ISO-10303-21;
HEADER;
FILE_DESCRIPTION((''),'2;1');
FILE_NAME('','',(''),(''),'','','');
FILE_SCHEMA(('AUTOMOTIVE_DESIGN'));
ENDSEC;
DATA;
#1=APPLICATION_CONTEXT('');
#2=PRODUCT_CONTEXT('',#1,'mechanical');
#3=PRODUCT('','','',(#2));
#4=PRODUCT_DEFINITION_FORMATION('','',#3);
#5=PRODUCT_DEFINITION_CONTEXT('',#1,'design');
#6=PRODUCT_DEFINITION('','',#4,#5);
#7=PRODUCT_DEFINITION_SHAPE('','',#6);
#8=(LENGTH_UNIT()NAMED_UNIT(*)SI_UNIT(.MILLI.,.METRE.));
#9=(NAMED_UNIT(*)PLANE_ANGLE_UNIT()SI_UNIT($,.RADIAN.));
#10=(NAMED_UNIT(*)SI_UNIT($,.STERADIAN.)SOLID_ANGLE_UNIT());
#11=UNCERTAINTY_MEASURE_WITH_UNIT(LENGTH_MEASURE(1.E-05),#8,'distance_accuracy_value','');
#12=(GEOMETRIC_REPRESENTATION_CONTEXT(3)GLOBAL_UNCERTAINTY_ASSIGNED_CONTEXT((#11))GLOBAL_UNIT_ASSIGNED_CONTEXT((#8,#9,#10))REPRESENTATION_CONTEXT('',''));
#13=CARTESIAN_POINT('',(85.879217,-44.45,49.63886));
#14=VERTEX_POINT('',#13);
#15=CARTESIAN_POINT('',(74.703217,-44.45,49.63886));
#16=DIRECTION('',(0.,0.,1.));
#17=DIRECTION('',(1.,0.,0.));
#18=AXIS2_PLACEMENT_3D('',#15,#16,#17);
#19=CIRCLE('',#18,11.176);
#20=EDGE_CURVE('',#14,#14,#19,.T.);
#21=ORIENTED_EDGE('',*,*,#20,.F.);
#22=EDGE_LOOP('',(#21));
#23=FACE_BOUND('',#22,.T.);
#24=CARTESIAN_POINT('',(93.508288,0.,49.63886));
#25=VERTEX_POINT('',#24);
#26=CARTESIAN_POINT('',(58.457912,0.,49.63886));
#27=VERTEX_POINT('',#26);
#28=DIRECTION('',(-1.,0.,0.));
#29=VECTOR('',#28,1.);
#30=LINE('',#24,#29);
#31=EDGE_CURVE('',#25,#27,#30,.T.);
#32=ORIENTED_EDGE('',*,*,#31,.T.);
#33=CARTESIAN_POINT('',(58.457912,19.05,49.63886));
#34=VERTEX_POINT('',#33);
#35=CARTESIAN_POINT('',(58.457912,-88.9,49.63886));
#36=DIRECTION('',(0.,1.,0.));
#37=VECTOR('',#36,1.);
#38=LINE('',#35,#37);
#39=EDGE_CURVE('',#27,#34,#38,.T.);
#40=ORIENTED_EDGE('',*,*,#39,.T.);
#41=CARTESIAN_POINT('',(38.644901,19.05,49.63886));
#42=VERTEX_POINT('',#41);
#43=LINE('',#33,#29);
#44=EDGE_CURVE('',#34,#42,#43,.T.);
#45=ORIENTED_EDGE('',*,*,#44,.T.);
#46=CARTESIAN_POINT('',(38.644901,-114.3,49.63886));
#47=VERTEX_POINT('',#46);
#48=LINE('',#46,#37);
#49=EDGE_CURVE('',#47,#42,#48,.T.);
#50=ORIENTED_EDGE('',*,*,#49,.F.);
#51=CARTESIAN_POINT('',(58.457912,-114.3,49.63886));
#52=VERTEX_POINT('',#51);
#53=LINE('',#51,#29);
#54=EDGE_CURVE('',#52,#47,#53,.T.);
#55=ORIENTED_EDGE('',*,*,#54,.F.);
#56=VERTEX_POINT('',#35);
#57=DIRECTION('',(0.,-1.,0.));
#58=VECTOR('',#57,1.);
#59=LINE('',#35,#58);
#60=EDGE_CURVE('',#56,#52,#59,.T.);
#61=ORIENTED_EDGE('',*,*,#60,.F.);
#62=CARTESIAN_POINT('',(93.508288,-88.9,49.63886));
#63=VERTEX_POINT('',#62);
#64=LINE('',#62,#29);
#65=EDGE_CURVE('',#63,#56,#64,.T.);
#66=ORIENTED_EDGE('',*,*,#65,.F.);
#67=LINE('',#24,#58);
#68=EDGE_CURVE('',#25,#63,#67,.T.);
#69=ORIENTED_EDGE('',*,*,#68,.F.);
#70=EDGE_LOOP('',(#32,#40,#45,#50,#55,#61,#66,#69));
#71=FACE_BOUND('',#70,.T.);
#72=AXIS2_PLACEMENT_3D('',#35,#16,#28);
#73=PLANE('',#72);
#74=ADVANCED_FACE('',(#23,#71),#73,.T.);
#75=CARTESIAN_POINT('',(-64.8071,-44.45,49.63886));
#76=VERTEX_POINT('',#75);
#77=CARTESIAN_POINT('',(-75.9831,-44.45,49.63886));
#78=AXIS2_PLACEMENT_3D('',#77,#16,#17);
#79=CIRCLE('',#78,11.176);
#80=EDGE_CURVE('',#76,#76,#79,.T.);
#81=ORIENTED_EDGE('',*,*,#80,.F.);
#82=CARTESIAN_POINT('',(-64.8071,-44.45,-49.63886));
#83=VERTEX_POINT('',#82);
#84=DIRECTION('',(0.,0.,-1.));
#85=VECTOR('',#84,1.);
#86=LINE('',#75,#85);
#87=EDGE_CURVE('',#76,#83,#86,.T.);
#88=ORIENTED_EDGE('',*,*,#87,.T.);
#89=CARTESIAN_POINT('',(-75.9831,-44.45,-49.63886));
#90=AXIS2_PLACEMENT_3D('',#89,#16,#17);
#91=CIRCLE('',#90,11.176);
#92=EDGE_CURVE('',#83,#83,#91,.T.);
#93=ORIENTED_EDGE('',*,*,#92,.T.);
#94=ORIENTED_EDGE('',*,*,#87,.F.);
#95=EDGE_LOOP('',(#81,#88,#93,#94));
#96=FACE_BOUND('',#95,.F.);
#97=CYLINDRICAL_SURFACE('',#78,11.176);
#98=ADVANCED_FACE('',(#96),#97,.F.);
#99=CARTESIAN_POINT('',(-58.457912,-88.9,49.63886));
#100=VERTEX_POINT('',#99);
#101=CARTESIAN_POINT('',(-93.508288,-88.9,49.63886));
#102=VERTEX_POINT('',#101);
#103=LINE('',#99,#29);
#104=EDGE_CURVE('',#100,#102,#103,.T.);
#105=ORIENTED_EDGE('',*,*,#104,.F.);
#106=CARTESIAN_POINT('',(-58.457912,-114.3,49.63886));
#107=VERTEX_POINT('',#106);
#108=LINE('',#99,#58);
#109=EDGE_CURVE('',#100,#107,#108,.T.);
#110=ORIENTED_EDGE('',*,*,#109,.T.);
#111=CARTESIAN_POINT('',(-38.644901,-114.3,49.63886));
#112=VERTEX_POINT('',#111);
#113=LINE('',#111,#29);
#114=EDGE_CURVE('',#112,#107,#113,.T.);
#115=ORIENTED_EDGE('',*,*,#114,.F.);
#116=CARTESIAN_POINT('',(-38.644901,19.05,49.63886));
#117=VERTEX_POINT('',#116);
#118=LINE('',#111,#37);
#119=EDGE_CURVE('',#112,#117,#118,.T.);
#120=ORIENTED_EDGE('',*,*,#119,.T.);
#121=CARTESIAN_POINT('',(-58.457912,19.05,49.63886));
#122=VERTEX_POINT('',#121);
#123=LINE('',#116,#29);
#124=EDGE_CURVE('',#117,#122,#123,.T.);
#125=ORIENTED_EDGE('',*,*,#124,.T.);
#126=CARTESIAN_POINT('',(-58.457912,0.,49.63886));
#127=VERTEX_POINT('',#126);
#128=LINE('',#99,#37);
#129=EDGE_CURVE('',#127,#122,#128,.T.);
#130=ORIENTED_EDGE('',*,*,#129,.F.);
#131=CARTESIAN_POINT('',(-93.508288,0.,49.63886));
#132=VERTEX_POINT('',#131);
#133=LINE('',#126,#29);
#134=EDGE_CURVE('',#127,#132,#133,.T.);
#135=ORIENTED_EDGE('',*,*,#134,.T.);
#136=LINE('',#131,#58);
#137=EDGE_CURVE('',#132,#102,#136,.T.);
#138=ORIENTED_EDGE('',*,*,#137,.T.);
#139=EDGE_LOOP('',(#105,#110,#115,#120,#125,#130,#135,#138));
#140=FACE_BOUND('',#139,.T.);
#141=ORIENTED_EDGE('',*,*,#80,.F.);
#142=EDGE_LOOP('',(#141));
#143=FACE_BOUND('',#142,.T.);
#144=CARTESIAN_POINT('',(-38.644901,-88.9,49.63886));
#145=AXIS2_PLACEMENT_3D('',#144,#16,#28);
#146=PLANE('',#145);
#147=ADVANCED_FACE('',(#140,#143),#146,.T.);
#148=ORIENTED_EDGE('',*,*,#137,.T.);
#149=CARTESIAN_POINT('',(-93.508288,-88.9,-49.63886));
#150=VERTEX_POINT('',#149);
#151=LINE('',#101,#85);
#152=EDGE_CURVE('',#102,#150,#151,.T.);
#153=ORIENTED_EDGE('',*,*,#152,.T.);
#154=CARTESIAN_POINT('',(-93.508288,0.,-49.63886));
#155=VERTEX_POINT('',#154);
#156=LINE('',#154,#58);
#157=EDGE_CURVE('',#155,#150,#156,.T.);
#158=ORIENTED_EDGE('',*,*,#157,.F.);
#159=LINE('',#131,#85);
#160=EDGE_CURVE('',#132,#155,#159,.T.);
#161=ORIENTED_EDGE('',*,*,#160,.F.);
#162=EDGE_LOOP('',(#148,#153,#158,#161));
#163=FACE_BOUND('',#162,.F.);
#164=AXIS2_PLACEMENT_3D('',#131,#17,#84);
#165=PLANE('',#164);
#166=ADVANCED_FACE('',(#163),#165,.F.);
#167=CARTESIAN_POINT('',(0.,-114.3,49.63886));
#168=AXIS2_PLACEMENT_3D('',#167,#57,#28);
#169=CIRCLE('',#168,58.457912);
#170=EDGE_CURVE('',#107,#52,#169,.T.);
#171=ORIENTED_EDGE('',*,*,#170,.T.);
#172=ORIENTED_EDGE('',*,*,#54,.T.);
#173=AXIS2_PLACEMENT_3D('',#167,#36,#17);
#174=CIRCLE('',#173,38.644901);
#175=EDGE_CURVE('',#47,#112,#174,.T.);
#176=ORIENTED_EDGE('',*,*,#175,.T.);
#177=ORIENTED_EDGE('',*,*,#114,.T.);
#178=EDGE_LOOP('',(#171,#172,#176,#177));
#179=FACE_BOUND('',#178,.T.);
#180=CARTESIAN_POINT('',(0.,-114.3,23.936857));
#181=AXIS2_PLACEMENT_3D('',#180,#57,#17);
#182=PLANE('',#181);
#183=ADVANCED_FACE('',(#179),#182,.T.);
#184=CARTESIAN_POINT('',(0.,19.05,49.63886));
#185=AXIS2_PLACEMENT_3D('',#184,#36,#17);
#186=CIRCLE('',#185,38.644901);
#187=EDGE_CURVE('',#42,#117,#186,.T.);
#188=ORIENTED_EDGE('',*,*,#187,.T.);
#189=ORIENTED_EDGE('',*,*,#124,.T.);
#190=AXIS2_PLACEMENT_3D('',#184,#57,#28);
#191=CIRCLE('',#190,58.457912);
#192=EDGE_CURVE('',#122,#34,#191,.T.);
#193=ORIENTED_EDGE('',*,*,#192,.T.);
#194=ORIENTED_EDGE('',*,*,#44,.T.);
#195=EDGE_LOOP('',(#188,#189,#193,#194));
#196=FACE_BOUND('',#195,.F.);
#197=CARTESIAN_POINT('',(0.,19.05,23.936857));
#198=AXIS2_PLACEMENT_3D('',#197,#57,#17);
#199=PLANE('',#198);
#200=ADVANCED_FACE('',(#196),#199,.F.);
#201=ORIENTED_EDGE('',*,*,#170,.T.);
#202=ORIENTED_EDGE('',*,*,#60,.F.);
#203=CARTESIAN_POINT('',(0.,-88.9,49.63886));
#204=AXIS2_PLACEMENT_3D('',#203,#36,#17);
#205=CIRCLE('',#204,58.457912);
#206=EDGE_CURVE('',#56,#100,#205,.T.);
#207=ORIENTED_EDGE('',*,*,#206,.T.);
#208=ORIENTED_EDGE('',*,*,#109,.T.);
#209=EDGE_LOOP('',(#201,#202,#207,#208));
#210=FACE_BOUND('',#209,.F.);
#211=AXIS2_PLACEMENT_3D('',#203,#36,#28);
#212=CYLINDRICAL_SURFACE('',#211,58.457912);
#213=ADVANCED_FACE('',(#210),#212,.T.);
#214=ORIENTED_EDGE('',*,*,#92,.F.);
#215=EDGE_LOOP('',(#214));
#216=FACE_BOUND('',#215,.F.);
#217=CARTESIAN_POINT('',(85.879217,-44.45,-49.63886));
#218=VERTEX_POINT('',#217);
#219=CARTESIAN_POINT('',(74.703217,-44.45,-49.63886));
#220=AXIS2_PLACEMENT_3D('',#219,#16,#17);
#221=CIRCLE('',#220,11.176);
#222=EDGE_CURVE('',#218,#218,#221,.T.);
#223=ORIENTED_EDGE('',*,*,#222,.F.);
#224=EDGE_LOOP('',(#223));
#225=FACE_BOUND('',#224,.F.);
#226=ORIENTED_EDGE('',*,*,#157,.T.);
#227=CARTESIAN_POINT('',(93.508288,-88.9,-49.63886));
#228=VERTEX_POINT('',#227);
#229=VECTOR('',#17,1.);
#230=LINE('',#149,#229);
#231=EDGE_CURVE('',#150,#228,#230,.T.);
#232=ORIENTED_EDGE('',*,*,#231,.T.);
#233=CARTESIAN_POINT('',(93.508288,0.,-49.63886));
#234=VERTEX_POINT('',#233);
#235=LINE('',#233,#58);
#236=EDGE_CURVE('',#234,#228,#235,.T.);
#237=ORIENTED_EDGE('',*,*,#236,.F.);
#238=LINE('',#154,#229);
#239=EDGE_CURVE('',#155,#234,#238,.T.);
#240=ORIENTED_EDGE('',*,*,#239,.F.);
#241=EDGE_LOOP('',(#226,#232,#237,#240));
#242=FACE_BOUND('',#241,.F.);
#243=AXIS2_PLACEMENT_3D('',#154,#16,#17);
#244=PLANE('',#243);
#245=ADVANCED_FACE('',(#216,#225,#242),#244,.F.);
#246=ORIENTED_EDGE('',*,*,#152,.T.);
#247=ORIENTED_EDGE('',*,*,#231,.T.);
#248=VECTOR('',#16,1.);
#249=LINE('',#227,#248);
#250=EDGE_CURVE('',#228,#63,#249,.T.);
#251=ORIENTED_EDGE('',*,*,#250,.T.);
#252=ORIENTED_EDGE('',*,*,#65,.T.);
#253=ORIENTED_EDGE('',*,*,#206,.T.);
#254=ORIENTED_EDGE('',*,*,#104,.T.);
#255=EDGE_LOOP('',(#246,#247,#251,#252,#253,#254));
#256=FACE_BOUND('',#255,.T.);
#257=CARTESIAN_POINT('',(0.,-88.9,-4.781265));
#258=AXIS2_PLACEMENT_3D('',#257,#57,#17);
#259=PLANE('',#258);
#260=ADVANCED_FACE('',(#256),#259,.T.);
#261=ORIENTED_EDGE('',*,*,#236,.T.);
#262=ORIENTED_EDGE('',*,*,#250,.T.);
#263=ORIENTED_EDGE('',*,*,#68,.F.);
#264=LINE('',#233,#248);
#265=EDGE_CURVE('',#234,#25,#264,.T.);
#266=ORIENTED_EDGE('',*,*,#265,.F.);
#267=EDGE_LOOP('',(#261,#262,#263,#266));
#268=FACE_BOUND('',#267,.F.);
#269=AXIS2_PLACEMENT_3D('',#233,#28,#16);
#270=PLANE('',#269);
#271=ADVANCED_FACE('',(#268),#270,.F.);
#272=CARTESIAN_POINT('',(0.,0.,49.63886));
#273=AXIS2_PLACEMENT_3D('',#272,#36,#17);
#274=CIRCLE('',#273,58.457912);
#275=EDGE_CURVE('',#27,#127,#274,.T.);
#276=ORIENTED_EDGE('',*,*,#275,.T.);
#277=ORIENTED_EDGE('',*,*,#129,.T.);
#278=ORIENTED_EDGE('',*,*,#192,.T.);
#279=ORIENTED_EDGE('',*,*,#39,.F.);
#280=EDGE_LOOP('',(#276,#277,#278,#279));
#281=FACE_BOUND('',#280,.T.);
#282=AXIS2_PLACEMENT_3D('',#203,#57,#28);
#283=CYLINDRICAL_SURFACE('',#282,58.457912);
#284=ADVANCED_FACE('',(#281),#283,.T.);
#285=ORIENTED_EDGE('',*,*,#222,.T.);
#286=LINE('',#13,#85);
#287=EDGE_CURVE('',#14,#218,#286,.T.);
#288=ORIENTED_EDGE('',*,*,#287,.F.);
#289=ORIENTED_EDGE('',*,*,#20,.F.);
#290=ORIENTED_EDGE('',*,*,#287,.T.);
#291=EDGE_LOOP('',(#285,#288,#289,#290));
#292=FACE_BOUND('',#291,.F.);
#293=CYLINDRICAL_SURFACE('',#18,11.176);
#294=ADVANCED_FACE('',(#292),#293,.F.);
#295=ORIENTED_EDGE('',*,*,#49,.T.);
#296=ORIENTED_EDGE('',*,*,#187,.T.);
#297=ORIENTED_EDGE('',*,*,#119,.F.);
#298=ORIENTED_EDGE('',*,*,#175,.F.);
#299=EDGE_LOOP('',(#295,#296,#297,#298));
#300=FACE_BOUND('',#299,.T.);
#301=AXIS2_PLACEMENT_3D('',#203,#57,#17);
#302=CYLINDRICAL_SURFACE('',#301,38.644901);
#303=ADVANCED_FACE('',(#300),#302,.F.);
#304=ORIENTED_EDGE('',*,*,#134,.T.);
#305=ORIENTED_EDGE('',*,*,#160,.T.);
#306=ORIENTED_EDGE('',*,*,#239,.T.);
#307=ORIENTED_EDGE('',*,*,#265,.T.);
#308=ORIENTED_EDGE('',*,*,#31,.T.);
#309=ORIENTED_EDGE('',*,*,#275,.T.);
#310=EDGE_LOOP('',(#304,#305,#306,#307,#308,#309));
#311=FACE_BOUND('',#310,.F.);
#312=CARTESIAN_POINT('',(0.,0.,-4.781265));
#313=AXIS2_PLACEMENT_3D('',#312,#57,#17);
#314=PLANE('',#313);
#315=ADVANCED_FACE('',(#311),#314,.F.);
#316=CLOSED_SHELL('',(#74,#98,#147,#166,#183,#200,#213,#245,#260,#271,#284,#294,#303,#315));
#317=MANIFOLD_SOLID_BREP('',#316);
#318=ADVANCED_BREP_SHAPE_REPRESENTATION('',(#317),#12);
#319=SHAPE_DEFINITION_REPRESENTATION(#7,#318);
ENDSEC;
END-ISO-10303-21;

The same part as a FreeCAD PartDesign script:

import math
import FreeCAD as App
import Part
import Sketcher
from FreeCAD import Vector
Q = App.Units.Quantity

doc = App.newDocument("Part")
body = doc.addObject("PartDesign::Body", "Body")

# Sketch on XZ plane
sketch1 = doc.addObject("Sketcher::SketchObject", "Sketch")
body.addObject(sketch1)
sketch1.AttachmentSupport = (doc.XZ_Plane, [""])
sketch1.MapMode = "FlatFace"
sketch1.addGeometry([
    Part.LineSegment(Vector(93.508288, -49.63886, 0), Vector(93.508288, 49.63886, 0)),  # 0
    Part.LineSegment(Vector(93.508288, 49.63886, 0), Vector(58.457912, 49.63886, 0)),  # 1
    Part.ArcOfCircle(Part.Circle(Vector(0, 49.63886, 0), Vector(0, 0, 1), 58.457912), math.radians(180), math.radians(360)),  # 2
    Part.LineSegment(Vector(-58.457912, 49.63886, 0), Vector(-93.508288, 49.63886, 0)),  # 3
    Part.LineSegment(Vector(-93.508288, 49.63886, 0), Vector(-93.508288, -49.63886, 0)),  # 4
    Part.LineSegment(Vector(-93.508288, -49.63886, 0), Vector(93.508288, -49.63886, 0)),  # 5
], False)
sketch1.addConstraint([
    Sketcher.Constraint("Coincident", 0, 2, 1, 1),
    Sketcher.Constraint("Coincident", 1, 2, 2, 2),
    Sketcher.Constraint("Coincident", 2, 1, 3, 1),
    Sketcher.Constraint("Coincident", 3, 2, 4, 1),
    Sketcher.Constraint("Coincident", 4, 2, 5, 1),
    Sketcher.Constraint("Coincident", 5, 2, 0, 1),
    Sketcher.Constraint("Vertical", 0),
    Sketcher.Constraint("Horizontal", 1),
    Sketcher.Constraint("Horizontal", 3),
    Sketcher.Constraint("Vertical", 4),
    Sketcher.Constraint("Horizontal", 5),
    Sketcher.Constraint("Symmetric", 0, 2, 4, 2, -1, 1),
    Sketcher.Constraint("Symmetric", 1, 2, 2, 1, -2),
    Sketcher.Constraint("Horizontal", 2, 3, 0, 2),
    Sketcher.Constraint("Radius", 2, 58.457912),
    Sketcher.Constraint("DistanceY", 0, 1, 0, 2, 99.27772),
    Sketcher.Constraint("DistanceX", 2, 1, 0, 2, 151.9662),
])
pad1 = doc.addObject("PartDesign::Pad", "Pad")
body.addObject(pad1)
pad1.Profile = sketch1
pad1.Length = Q("3.5 in")

# Sketch on XZ plane
sketch2 = doc.addObject("Sketcher::SketchObject", "Sketch001")
body.addObject(sketch2)
sketch2.AttachmentSupport = (doc.XZ_Plane, [""])
sketch2.MapMode = "FlatFace"
sketch2.AttachmentOffset = App.Placement(Vector(0, 0, 3.5 * 25.4), App.Rotation())
sketch2.addGeometry([
    Part.LineSegment(Vector(-38.644901, 49.63886, 0), Vector(-58.457912, 49.63886, 0)),
    Part.ArcOfCircle(Part.Circle(Vector(0, 49.63886, 0), Vector(0, 0, 1), 58.457912), math.radians(180), math.radians(360)),
    Part.LineSegment(Vector(58.457912, 49.63886, 0), Vector(38.644901, 49.63886, 0)),
    Part.ArcOfCircle(Part.Circle(Vector(0, 49.63886, 0), Vector(0, 0, 1), 38.644901), math.radians(180), math.radians(360)),
], False)
sketch2.addConstraint([
    Sketcher.Constraint("Coincident", 0, 2, 1, 1),
    Sketcher.Constraint("Coincident", 1, 2, 2, 1),
    Sketcher.Constraint("Coincident", 2, 2, 3, 2),
    Sketcher.Constraint("Coincident", 3, 1, 0, 1),
    Sketcher.Constraint("Horizontal", 0),
    Sketcher.Constraint("Horizontal", 2),
    Sketcher.Constraint("Coincident", 3, 3, 1, 3),
    Sketcher.Constraint("Symmetric", 0, 2, 1, 2, -2),
    Sketcher.Constraint("Horizontal", 3, 3, 0, 2),
    Sketcher.Constraint("Radius", 3, 38.644901),
    Sketcher.Constraint("Radius", 1, 58.457912),
    Sketcher.Constraint("DistanceY", -1, 1, 1, 3, 49.63886),
])
pad2 = doc.addObject("PartDesign::Pad", "Pad001")
body.addObject(pad2)
pad2.Profile = sketch2
pad2.Type = "TwoLengths"
pad2.Length = Q("1 in")
pad2.Length2 = Q("4.25 in")

# Sketch on XY plane
sketch3 = doc.addObject("Sketcher::SketchObject", "Sketch002")
body.addObject(sketch3)
sketch3.AttachmentSupport = (doc.XY_Plane, [""])
sketch3.MapMode = "FlatFace"
sketch3.AttachmentOffset = App.Placement(Vector(0, 0, 49.63886), App.Rotation())
sketch3.addGeometry([
    Part.Circle(Vector(-75.9831, -44.45, 0), Vector(0, 0, 1), 11.176),
    Part.Circle(Vector(74.703217, -44.45, 0), Vector(0, 0, 1), 11.176),
], False)
sketch3.addConstraint([
    Sketcher.Constraint("Equal", 0, 1),
    Sketcher.Constraint("Horizontal", 0, 3, 1, 3),
    Sketcher.Constraint("Diameter", 0, Q("0.88 in")),
    Sketcher.Constraint("DistanceY", 0, 3, -1, 1, Q("1.75 in")),
    Sketcher.Constraint("DistanceX", 0, 3, -1, 1, 75.9831),
    Sketcher.Constraint("DistanceX", -1, 1, 1, 3, 74.703217),
])
pocket1 = doc.addObject("PartDesign::Pocket", "Pocket")
body.addObject(pocket1)
pocket1.Profile = sketch3
pocket1.Type = "ThroughAll"

doc.recompute()
